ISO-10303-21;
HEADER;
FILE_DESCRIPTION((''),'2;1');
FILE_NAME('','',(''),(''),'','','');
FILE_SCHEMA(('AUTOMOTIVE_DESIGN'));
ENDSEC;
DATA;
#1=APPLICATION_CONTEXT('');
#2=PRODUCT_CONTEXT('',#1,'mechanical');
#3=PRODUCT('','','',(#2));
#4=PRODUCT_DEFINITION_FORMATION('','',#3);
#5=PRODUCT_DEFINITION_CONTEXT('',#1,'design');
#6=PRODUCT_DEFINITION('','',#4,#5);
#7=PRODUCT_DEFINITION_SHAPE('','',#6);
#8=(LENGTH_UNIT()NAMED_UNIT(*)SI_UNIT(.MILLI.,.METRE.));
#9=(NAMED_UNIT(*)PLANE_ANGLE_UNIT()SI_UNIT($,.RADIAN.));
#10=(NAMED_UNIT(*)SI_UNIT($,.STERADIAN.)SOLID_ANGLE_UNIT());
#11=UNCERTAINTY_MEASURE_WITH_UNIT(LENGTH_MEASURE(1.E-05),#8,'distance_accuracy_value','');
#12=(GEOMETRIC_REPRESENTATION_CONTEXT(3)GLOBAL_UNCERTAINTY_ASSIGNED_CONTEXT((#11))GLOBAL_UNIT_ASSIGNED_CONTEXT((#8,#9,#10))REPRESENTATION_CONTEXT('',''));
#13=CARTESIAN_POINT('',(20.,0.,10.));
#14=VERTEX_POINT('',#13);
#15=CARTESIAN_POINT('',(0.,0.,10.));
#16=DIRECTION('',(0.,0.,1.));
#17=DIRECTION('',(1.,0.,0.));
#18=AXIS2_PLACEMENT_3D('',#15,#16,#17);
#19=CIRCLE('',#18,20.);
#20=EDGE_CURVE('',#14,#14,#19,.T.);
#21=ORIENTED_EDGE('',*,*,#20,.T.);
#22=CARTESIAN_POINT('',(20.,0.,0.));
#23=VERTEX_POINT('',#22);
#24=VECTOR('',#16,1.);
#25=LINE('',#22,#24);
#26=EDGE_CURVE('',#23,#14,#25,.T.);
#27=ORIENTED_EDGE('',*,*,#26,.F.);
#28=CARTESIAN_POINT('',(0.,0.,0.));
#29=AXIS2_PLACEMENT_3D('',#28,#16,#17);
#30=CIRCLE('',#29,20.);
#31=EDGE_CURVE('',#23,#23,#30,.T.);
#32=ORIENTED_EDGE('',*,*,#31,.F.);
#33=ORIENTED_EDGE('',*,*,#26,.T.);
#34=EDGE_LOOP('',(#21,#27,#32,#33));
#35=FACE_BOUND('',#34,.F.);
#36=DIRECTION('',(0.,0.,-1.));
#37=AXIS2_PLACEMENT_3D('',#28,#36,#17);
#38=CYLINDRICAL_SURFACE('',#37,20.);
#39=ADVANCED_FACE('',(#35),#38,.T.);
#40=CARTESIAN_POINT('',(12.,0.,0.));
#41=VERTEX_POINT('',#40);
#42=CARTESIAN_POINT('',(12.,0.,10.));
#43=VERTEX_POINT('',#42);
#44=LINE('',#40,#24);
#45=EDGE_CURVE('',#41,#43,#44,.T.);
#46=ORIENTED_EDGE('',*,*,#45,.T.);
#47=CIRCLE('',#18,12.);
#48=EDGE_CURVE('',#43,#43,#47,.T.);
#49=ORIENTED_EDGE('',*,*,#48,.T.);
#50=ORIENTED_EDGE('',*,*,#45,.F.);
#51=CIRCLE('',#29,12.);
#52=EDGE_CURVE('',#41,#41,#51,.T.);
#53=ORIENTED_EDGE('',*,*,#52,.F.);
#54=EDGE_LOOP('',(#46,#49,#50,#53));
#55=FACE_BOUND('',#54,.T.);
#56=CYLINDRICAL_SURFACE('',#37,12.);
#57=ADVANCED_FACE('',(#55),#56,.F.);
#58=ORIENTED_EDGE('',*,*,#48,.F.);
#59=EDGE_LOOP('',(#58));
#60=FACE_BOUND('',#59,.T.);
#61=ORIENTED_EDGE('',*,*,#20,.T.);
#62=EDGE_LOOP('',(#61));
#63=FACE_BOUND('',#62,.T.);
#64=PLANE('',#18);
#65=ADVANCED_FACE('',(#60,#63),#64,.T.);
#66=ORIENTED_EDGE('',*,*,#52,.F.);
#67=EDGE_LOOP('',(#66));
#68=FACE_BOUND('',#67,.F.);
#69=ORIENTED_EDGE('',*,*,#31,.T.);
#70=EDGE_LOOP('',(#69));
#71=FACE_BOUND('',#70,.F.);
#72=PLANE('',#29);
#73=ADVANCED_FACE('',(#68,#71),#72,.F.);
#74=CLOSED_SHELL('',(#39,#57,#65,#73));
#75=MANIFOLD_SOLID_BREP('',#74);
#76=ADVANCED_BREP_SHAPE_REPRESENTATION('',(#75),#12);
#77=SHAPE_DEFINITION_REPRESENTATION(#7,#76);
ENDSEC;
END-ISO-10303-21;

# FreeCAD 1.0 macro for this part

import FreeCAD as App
import Part
import Sketcher

V = App.Vector
Q = App.Units.Quantity

doc = App.newDocument("Part")
body = doc.addObject("PartDesign::Body", "Body")

# Sketch on XY plane
sketch1 = body.newObject("Sketcher::SketchObject", "Sketch")
sketch1.AttachmentSupport = (doc.getObject("XY_Plane"), [""])
sketch1.MapMode = "FlatFace"
sketch1.addGeometry(Part.Circle(V(0, 0, 0), V(0, 0, 1), 20), False)
sketch1.addGeometry(Part.Circle(V(0, 0, 0), V(0, 0, 1), 12), False)
sketch1.addConstraint(Sketcher.Constraint("Coincident", 0, 3, -1, 1))
sketch1.addConstraint(Sketcher.Constraint("Coincident", 1, 3, -1, 1))
sketch1.addConstraint(Sketcher.Constraint("Diameter", 0, Q("40 mm")))
sketch1.addConstraint(Sketcher.Constraint("Diameter", 1, Q("24 mm")))
pad1 = body.newObject("PartDesign::Pad", "Pad")
pad1.Profile = sketch1
pad1.Length = 10

doc.recompute()
